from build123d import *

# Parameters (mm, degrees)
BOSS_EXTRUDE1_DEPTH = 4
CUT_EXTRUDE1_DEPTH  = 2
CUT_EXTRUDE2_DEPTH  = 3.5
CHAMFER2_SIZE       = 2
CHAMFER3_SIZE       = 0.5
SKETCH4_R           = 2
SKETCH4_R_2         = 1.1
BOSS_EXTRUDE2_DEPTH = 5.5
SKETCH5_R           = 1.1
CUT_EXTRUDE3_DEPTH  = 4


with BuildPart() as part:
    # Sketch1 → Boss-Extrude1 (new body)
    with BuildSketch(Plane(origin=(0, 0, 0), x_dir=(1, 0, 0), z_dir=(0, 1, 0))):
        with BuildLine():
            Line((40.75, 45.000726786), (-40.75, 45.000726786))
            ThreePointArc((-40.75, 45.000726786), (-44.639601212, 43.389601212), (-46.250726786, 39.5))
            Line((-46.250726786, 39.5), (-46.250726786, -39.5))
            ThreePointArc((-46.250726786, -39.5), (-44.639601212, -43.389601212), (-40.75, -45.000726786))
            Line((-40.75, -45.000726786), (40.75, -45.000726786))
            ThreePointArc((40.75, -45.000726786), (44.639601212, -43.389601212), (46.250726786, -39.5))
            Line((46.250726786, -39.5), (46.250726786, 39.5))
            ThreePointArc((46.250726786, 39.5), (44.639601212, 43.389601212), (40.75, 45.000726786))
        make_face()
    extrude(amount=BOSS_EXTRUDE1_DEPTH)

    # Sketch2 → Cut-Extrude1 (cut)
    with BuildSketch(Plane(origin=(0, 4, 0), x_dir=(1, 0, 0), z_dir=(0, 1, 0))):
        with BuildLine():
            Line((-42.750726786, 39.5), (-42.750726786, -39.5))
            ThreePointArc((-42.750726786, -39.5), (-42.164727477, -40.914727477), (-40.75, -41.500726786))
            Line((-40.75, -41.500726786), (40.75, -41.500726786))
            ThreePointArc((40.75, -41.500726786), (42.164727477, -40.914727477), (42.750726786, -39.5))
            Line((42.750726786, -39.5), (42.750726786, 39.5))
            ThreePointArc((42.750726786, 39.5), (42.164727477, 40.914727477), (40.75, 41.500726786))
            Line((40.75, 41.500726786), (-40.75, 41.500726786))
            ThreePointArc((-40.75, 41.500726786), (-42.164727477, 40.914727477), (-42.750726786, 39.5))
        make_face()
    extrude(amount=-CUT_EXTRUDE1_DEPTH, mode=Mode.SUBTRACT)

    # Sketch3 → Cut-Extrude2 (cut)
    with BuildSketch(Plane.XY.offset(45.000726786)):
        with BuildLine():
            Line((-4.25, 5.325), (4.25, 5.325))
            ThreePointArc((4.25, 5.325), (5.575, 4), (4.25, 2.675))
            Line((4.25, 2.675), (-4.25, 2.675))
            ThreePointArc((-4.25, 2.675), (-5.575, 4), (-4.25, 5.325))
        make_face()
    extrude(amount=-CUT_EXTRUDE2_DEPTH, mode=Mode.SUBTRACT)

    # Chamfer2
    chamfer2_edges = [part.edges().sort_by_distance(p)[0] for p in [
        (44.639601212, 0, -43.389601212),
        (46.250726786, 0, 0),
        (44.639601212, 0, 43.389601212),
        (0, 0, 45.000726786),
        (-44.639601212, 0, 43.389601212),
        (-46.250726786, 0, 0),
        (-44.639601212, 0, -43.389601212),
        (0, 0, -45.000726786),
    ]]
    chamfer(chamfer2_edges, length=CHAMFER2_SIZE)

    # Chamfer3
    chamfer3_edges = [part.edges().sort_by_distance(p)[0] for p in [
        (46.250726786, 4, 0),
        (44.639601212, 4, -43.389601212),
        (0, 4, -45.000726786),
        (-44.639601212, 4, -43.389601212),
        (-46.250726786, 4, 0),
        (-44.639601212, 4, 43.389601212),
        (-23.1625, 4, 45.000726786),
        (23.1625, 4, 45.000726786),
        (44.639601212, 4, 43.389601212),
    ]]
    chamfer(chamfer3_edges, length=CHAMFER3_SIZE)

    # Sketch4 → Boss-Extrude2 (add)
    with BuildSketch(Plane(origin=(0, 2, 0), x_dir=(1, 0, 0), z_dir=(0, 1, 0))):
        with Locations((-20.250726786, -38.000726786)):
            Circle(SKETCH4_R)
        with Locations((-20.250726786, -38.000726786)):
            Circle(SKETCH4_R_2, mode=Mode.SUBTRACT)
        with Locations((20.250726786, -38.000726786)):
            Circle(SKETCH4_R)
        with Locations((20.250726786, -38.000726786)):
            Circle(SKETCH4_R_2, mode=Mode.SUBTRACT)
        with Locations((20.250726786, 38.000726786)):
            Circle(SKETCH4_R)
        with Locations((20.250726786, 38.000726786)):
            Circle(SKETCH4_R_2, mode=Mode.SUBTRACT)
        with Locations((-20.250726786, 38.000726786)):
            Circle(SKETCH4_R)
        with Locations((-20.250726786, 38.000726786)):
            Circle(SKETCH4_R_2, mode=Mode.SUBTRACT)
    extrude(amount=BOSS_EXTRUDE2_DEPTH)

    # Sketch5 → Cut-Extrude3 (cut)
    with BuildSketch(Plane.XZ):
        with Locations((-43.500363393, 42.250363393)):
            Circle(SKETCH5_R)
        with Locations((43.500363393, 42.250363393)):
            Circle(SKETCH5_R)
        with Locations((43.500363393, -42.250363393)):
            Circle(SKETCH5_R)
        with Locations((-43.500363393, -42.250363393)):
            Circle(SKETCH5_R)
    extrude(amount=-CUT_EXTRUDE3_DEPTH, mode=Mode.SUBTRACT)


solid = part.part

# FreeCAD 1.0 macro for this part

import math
import FreeCAD as App
import Part
import Sketcher

V = App.Vector
Q = App.Units.Quantity


def edges_at(feature, points):
    """Names of the edges that pass closest to the given points."""
    edges = feature.Shape.Edges
    near = lambda p: min(range(len(edges)), key=lambda i: edges[i].distToShape(Part.Vertex(*p))[0])
    return sorted({f"Edge{near(p) + 1}" for p in points})

doc = App.newDocument("Part")
body = doc.addObject("PartDesign::Body", "Body")

sketch1 = body.newObject("Sketcher::SketchObject", "Sketch")
sketch1.AttachmentSupport = (doc.getObject("XZ_Plane"), [""])
sketch1.MapMode = "FlatFace"
sketch1.addGeometry([
    Part.LineSegment(V(41, -45, 0), V(-41, -45, 0)),
    Part.ArcOfCircle(Part.Circle(V(-41, -40, 0), V(0, 0, 1), 6), math.radians(180), math.radians(270)),
    Part.LineSegment(V(-46, -40, 0), V(-46, 40, 0)),
    Part.ArcOfCircle(Part.Circle(V(-41, 40, 0), V(0, 0, 1), 6), math.radians(90), math.radians(180)),
    Part.LineSegment(V(-41, 45, 0), V(41, 45, 0)),
    Part.ArcOfCircle(Part.Circle(V(41, 40, 0), V(0, 0, 1), 6), math.radians(0), math.radians(90)),
    Part.LineSegment(V(46, 40, 0), V(46, -40, 0)),
    Part.ArcOfCircle(Part.Circle(V(41, -40, 0), V(0, 0, 1), 6), math.radians(-90), math.radians(0)),
], False)
sketch1.addConstraint([
    Sketcher.Constraint("Tangent", 0, 2, 1, 2),
    Sketcher.Constraint("Tangent", 1, 1, 2, 1),
    Sketcher.Constraint("Tangent", 2, 2, 3, 2),
    Sketcher.Constraint("Tangent", 3, 1, 4, 1),
    Sketcher.Constraint("Tangent", 4, 2, 5, 2),
    Sketcher.Constraint("Tangent", 5, 1, 6, 1),
    Sketcher.Constraint("Tangent", 6, 2, 7, 2),
    Sketcher.Constraint("Tangent", 7, 1, 0, 1),
    Sketcher.Constraint("Horizontal", 0),
    Sketcher.Constraint("Vertical", 2),
    Sketcher.Constraint("Horizontal", 4),
    Sketcher.Constraint("Vertical", 6),
    Sketcher.Constraint("Equal", 1, 3),
    Sketcher.Constraint("Equal", 3, 5),
    Sketcher.Constraint("Equal", 5, 7),
    Sketcher.Constraint("Symmetric", 1, 3, 5, 3, -1, 1),
    Sketcher.Constraint("DistanceY", 2, 1, 2, 2, Q("79 mm")),
    Sketcher.Constraint("DistanceX", 0, 2, 0, 1, Q("81.5 mm")),
    Sketcher.Constraint("Radius", 1, Q("5.500727 mm")),
])
pad1 = body.newObject("PartDesign::Pad", "Pad")
pad1.Profile = sketch1
pad1.Length = 4
pad1.Reversed = True

sketch2 = body.newObject("Sketcher::SketchObject", "Sketch001")
sketch2.AttachmentSupport = (doc.getObject("XZ_Plane"), [""])
sketch2.MapMode = "FlatFace"
sketch2.AttachmentOffset = App.Placement(V(0, 0, -4), App.Rotation())
sketch2.addGeometry([
    Part.LineSegment(V(-42.8, -39.5, 0), V(-42.8, 39.5, 0)),
    Part.ArcOfCircle(Part.Circle(V(-40.7, 39.5, 0), V(0, 0, 1), 2), math.radians(90), math.radians(180)),
    Part.LineSegment(V(-40.8, 41.5, 0), V(40.8, 41.5, 0)),
    Part.ArcOfCircle(Part.Circle(V(40.7, 39.5, 0), V(0, 0, 1), 2), math.radians(0), math.radians(90)),
    Part.LineSegment(V(42.8, 39.5, 0), V(42.8, -39.5, 0)),
    Part.ArcOfCircle(Part.Circle(V(40.7, -39.5, 0), V(0, 0, 1), 2), math.radians(-90), math.radians(0)),
    Part.LineSegment(V(40.8, -41.5, 0), V(-40.8, -41.5, 0)),
    Part.ArcOfCircle(Part.Circle(V(-40.7, -39.5, 0), V(0, 0, 1), 2), math.radians(-180), math.radians(-90)),
], False)
sketch2.addConstraint([
    Sketcher.Constraint("Tangent", 0, 2, 1, 2),
    Sketcher.Constraint("Tangent", 1, 1, 2, 1),
    Sketcher.Constraint("Tangent", 2, 2, 3, 2),
    Sketcher.Constraint("Tangent", 3, 1, 4, 1),
    Sketcher.Constraint("Tangent", 4, 2, 5, 2),
    Sketcher.Constraint("Tangent", 5, 1, 6, 1),
    Sketcher.Constraint("Tangent", 6, 2, 7, 2),
    Sketcher.Constraint("Tangent", 7, 1, 0, 1),
    Sketcher.Constraint("Vertical", 0),
    Sketcher.Constraint("Horizontal", 2),
    Sketcher.Constraint("Vertical", 4),
    Sketcher.Constraint("Horizontal", 6),
    Sketcher.Constraint("Equal", 1, 3),
    Sketcher.Constraint("Equal", 3, 5),
    Sketcher.Constraint("Equal", 5, 7),
    Sketcher.Constraint("Symmetric", 1, 3, 5, 3, -1, 1),
    Sketcher.Constraint("DistanceY", 0, 1, 0, 2, Q("79 mm")),
    Sketcher.Constraint("DistanceX", 2, 1, 2, 2, Q("81.5 mm")),
    Sketcher.Constraint("Radius", 1, Q("2.000727 mm")),
])
pocket1 = body.newObject("PartDesign::Pocket", "Pocket")
pocket1.Profile = sketch2
pocket1.Length = 2
pocket1.Reversed = True

sketch3 = body.newObject("Sketcher::SketchObject", "Sketch002")
sketch3.AttachmentSupport = (doc.getObject("XY_Plane"), [""])
sketch3.MapMode = "FlatFace"
sketch3.AttachmentOffset = App.Placement(V(0, 0, 45.000727), App.Rotation())
sketch3.addGeometry([
    Part.LineSegment(V(4.2, 5.3, 0), V(-4.2, 5.3, 0)),
    Part.ArcOfCircle(Part.Circle(V(-4.2, 4, 0), V(0, 0, 1), 1.3), math.radians(90), math.radians(270)),
    Part.LineSegment(V(-4.2, 2.7, 0), V(4.2, 2.7, 0)),
    Part.ArcOfCircle(Part.Circle(V(4.2, 4, 0), V(0, 0, 1), 1.3), math.radians(-90), math.radians(90)),
], False)
sketch3.addConstraint([
    Sketcher.Constraint("Tangent", 0, 2, 1, 1),
    Sketcher.Constraint("Tangent", 1, 2, 2, 1),
    Sketcher.Constraint("Tangent", 2, 2, 3, 1),
    Sketcher.Constraint("Tangent", 3, 2, 0, 1),
    Sketcher.Constraint("Horizontal", 0),
    Sketcher.Constraint("Horizontal", 2),
    Sketcher.Constraint("DistanceX", 0, 2, 0, 1, Q("8.5 mm")),
    Sketcher.Constraint("DistanceY", -1, 1, 1, 3, Q("4 mm")),
    Sketcher.Constraint("Radius", 1, Q("1.325 mm")),
    Sketcher.Constraint("DistanceX", 1, 3, -1, 1, Q("4.25 mm")),
])
pocket2 = body.newObject("PartDesign::Pocket", "Pocket001")
pocket2.Profile = sketch3
pocket2.Length = 3.5
doc.recompute()

chamfer = body.newObject("PartDesign::Chamfer", "Chamfer")
chamfer.Base = (pocket2, edges_at(pocket2, [
    (44.64, 0, -43.39),
    (46.251, 0, 0),
    (44.64, 0, 43.39),
    (0, 0, 45.001),
    (-44.64, 0, 43.39),
    (-46.251, 0, 0),
    (-44.64, 0, -43.39),
    (0, 0, -45.001),
]))
chamfer.Size = 2
doc.recompute()

chamfer2 = body.newObject("PartDesign::Chamfer", "Chamfer001")
chamfer2.Base = (chamfer, edges_at(chamfer, [
    (46.251, 4, 0),
    (44.64, 4, -43.39),
    (0, 4, -45.001),
    (-44.64, 4, -43.39),
    (-46.251, 4, 0),
    (-44.64, 4, 43.39),
    (-23.163, 4, 45.001),
    (23.163, 4, 45.001),
    (44.64, 4, 43.39),
]))
chamfer2.Size = 0.5

sketch4 = body.newObject("Sketcher::SketchObject", "Sketch003")
sketch4.AttachmentSupport = (doc.getObject("XZ_Plane"), [""])
sketch4.MapMode = "FlatFace"
sketch4.AttachmentOffset = App.Placement(V(0, 0, -2), App.Rotation())
sketch4.addGeometry([
    Part.Circle(V(-20.3, 38, 0), V(0, 0, 1), 2),
    Part.Circle(V(-20.3, 38, 0), V(0, 0, 1), 1.1),
    Part.Circle(V(20.3, 38, 0), V(0, 0, 1), 2),
    Part.Circle(V(20.3, 38, 0), V(0, 0, 1), 1.1),
    Part.Circle(V(20.3, -38, 0), V(0, 0, 1), 2),
    Part.Circle(V(20.3, -38, 0), V(0, 0, 1), 1.1),
    Part.Circle(V(-20.3, -38, 0), V(0, 0, 1), 2),
    Part.Circle(V(-20.3, -38, 0), V(0, 0, 1), 1.1),
], False)
sketch4.addConstraint([
    Sketcher.Constraint("Coincident", 1, 3, 0, 3),
    Sketcher.Constraint("Coincident", 3, 3, 2, 3),
    Sketcher.Constraint("Coincident", 5, 3, 4, 3),
    Sketcher.Constraint("Coincident", 7, 3, 6, 3),
    Sketcher.Constraint("Equal", 0, 2),
    Sketcher.Constraint("Equal", 1, 3),
    Sketcher.Constraint("Equal", 2, 4),
    Sketcher.Constraint("Equal", 3, 5),
    Sketcher.Constraint("Equal", 4, 6),
    Sketcher.Constraint("Equal", 5, 7),
    Sketcher.Constraint("Symmetric", 0, 3, 4, 3, -1, 1),
    Sketcher.Constraint("Symmetric", 2, 3, 6, 3, -1, 1),
    Sketcher.Constraint("Symmetric", 0, 3, 2, 3, -2),
    Sketcher.Constraint("Diameter", 0, Q("4 mm")),
    Sketcher.Constraint("Diameter", 1, Q("2.2 mm")),
    Sketcher.Constraint("DistanceX", 0, 3, -1, 1, Q("20.250727 mm")),
    Sketcher.Constraint("DistanceY", -1, 1, 0, 3, Q("38.000727 mm")),
])
pad2 = body.newObject("PartDesign::Pad", "Pad001")
pad2.Profile = sketch4
pad2.Length = 5.5
pad2.Reversed = True

sketch5 = body.newObject("Sketcher::SketchObject", "Sketch004")
sketch5.AttachmentSupport = (doc.getObject("XZ_Plane"), [""])
sketch5.MapMode = "FlatFace"
sketch5.addGeometry([
    Part.Circle(V(-43.5, 42.3, 0), V(0, 0, 1), 1.1),
    Part.Circle(V(43.5, 42.3, 0), V(0, 0, 1), 1.1),
    Part.Circle(V(43.5, -42.3, 0), V(0, 0, 1), 1.1),
    Part.Circle(V(-43.5, -42.3, 0), V(0, 0, 1), 1.1),
], False)
sketch5.addConstraint([
    Sketcher.Constraint("Equal", 0, 1),
    Sketcher.Constraint("Equal", 1, 2),
    Sketcher.Constraint("Equal", 2, 3),
    Sketcher.Constraint("Symmetric", 0, 3, 2, 3, -1, 1),
    Sketcher.Constraint("Symmetric", 1, 3, 3, 3, -1, 1),
    Sketcher.Constraint("Symmetric", 0, 3, 1, 3, -2),
    Sketcher.Constraint("Diameter", 0, Q("2.2 mm")),
    Sketcher.Constraint("DistanceX", 0, 3, -1, 1, Q("43.500363 mm")),
    Sketcher.Constraint("DistanceY", -1, 1, 0, 3, Q("42.250363 mm")),
])
pocket3 = body.newObject("PartDesign::Pocket", "Pocket002")
pocket3.Profile = sketch5
pocket3.Length = 4

doc.recompute()
